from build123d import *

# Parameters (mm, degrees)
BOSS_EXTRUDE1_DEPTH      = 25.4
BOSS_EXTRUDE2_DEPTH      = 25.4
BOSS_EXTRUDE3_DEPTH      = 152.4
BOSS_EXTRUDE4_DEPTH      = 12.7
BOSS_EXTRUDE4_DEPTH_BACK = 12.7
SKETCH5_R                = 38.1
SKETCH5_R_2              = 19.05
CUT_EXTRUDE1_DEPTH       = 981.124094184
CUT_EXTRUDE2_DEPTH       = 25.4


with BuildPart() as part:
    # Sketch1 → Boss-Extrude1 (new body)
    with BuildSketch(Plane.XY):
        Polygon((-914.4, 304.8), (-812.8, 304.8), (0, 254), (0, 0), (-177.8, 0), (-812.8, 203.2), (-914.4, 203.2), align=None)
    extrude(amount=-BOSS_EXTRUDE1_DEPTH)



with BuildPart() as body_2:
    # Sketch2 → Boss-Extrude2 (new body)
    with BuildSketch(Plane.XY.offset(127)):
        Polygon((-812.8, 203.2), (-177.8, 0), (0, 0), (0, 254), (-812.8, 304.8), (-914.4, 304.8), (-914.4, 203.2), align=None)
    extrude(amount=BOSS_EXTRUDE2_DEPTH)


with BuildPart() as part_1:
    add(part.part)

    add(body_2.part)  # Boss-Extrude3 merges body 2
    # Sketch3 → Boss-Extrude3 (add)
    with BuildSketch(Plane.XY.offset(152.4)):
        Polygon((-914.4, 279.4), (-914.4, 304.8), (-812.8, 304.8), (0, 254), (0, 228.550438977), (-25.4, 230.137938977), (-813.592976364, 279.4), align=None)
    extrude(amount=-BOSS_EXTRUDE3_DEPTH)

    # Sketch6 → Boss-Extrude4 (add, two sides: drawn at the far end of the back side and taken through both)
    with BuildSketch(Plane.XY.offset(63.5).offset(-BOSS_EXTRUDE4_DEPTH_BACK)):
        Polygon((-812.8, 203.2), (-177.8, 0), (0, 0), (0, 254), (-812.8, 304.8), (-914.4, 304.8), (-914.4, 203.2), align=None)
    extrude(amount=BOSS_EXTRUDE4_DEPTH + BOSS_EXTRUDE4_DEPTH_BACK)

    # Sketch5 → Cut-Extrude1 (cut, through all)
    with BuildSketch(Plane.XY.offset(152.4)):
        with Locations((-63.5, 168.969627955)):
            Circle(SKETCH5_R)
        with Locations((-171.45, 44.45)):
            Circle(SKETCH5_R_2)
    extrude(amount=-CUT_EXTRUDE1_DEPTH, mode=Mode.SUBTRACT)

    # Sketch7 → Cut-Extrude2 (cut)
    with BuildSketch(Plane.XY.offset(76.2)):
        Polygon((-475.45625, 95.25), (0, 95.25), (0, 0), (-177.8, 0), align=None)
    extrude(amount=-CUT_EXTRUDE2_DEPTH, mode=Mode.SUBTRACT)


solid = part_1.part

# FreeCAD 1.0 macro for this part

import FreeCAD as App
import Part
import Sketcher

V = App.Vector
Q = App.Units.Quantity

doc = App.newDocument("Part")
body = doc.addObject("PartDesign::Body", "Body")

# Sketch on XY plane
sketch1 = body.newObject("Sketcher::SketchObject", "Sketch")
sketch1.AttachmentSupport = (doc.getObject("XY_Plane"), [""])
sketch1.MapMode = "FlatFace"
sketch1.addGeometry([
    Part.LineSegment(V(-813, 305, 0), V(-914, 305, 0)),  # 0
    Part.LineSegment(V(-914, 305, 0), V(-914, 203, 0)),  # 1
    Part.LineSegment(V(-914, 203, 0), V(-813, 203, 0)),  # 2
    Part.LineSegment(V(-813, 203, 0), V(-178, 0, 0)),  # 3
    Part.LineSegment(V(-178, 0, 0), V(0, 0, 0)),  # 4
    Part.LineSegment(V(0, 0, 0), V(0, 254, 0)),  # 5
    Part.LineSegment(V(0, 254, 0), V(-813, 305, 0)),  # 6
], False)
sketch1.addConstraint([
    Sketcher.Constraint("Coincident", 0, 2, 1, 1),
    Sketcher.Constraint("Coincident", 1, 2, 2, 1),
    Sketcher.Constraint("Coincident", 2, 2, 3, 1),
    Sketcher.Constraint("Coincident", 3, 2, 4, 1),
    Sketcher.Constraint("Coincident", 4, 2, 5, 1),
    Sketcher.Constraint("Coincident", 5, 2, 6, 1),
    Sketcher.Constraint("Coincident", 6, 2, 0, 1),
    Sketcher.Constraint("Horizontal", 0),
    Sketcher.Constraint("Vertical", 1),
    Sketcher.Constraint("Horizontal", 2),
    Sketcher.Constraint("Horizontal", 4),
    Sketcher.Constraint("Vertical", 5),
    Sketcher.Constraint("Coincident", 4, 2, -1, 1),
    Sketcher.Constraint("Vertical", 2, 2, 6, 2),
    Sketcher.Constraint("Equal", 2, 1),
    Sketcher.Constraint("DistanceX", 0, 2, 0, 1, Q("4 in")),
    Sketcher.Constraint("DistanceX", 4, 1, 4, 2, Q("7 in")),
    Sketcher.Constraint("DistanceY", 5, 1, 5, 2, Q("10 in")),
    Sketcher.Constraint("DistanceX", 0, 2, -1, 1, Q("36 in")),
    Sketcher.Constraint("DistanceY", -1, 1, 0, 2, Q("12 in")),
])
pad1 = body.newObject("PartDesign::Pad", "Pad")
pad1.Profile = sketch1
pad1.Length = Q("1 in")
pad1.Reversed = True
body2 = doc.addObject("PartDesign::Body", "Body001")

# Sketch on XY plane
sketch2 = body2.newObject("Sketcher::SketchObject", "Sketch001")
sketch2.AttachmentSupport = (doc.getObject("XY_Plane001"), [""])
sketch2.MapMode = "FlatFace"
sketch2.AttachmentOffset = App.Placement(V(0, 0, 5 * 25.4), App.Rotation())
sketch2.addGeometry([
    Part.LineSegment(V(-813, 203, 0), V(-178, 0, 0)),  # 0
    Part.LineSegment(V(-178, 0, 0), V(0, 0, 0)),  # 1
    Part.LineSegment(V(0, 0, 0), V(0, 254, 0)),  # 2
    Part.LineSegment(V(0, 254, 0), V(-813, 305, 0)),  # 3
    Part.LineSegment(V(-813, 305, 0), V(-914, 305, 0)),  # 4
    Part.LineSegment(V(-914, 305, 0), V(-914, 203, 0)),  # 5
    Part.LineSegment(V(-914, 203, 0), V(-813, 203, 0)),  # 6
], False)
sketch2.addConstraint([
    Sketcher.Constraint("Coincident", 0, 2, 1, 1),
    Sketcher.Constraint("Coincident", 1, 2, 2, 1),
    Sketcher.Constraint("Coincident", 2, 2, 3, 1),
    Sketcher.Constraint("Coincident", 3, 2, 4, 1),
    Sketcher.Constraint("Coincident", 4, 2, 5, 1),
    Sketcher.Constraint("Coincident", 5, 2, 6, 1),
    Sketcher.Constraint("Coincident", 6, 2, 0, 1),
    Sketcher.Constraint("Horizontal", 1),
    Sketcher.Constraint("Vertical", 2),
    Sketcher.Constraint("Horizontal", 4),
    Sketcher.Constraint("Vertical", 5),
    Sketcher.Constraint("Horizontal", 6),
    Sketcher.Constraint("Coincident", 1, 2, -1, 1),
    Sketcher.Constraint("Vertical", 3, 2, 6, 2),
    Sketcher.Constraint("Equal", 6, 5),
    Sketcher.Constraint("DistanceX", 1, 1, 1, 2, Q("7 in")),
    Sketcher.Constraint("DistanceX", 4, 2, 4, 1, Q("4 in")),
    Sketcher.Constraint("DistanceY", 2, 1, 2, 2, Q("10 in")),
    Sketcher.Constraint("DistanceX", 3, 2, -1, 1, Q("32 in")),
    Sketcher.Constraint("DistanceY", -1, 1, 3, 2, Q("12 in")),
])
pad2 = body2.newObject("PartDesign::Pad", "Pad001")
pad2.Profile = sketch2
pad2.Length = Q("1 in")
body.AllowCompound = True
doc.recompute()

boolean = body.newObject("PartDesign::Boolean", "Boolean")
boolean.Type = "Fuse"
boolean.addObjects([body2])

# Sketch on XY plane
sketch3 = body.newObject("Sketcher::SketchObject", "Sketch002")
sketch3.AttachmentSupport = (doc.getObject("XY_Plane"), [""])
sketch3.MapMode = "FlatFace"
sketch3.AttachmentOffset = App.Placement(V(0, 0, 6 * 25.4), App.Rotation())
sketch3.addGeometry([
    Part.LineSegment(V(-914, 305, 0), V(-914, 279, 0)),  # 0
    Part.LineSegment(V(-914, 279, 0), V(-814, 279, 0)),  # 1
    Part.LineSegment(V(-814, 279, 0), V(0, 229, 0)),  # 2
    Part.LineSegment(V(0, 229, 0), V(0, 254, 0)),  # 3
    Part.LineSegment(V(0, 254, 0), V(-813, 305, 0)),  # 4
    Part.LineSegment(V(-813, 305, 0), V(-914, 305, 0)),  # 5
], False)
sketch3.addConstraint([
    Sketcher.Constraint("Coincident", 0, 2, 1, 1),
    Sketcher.Constraint("Coincident", 1, 2, 2, 1),
    Sketcher.Constraint("Coincident", 2, 2, 3, 1),
    Sketcher.Constraint("Coincident", 3, 2, 4, 1),
    Sketcher.Constraint("Coincident", 4, 2, 5, 1),
    Sketcher.Constraint("Coincident", 5, 2, 0, 1),
    Sketcher.Constraint("Vertical", 0),
    Sketcher.Constraint("Horizontal", 1),
    Sketcher.Constraint("Vertical", 3),
    Sketcher.Constraint("Horizontal", 5),
    Sketcher.Constraint("PointOnObject", 2, 2, -2),
    Sketcher.Constraint("Parallel", 2, 4),
    Sketcher.Constraint("DistanceX", 5, 2, 5, 1, Q("4 in")),
    Sketcher.Constraint("DistanceY", 0, 2, 0, 1, Q("1 in")),
    Sketcher.Constraint("DistanceX", 0, 2, -1, 1, Q("36 in")),
    Sketcher.Constraint("DistanceY", -1, 1, 0, 2, Q("11 in")),
    Sketcher.Constraint("DistanceY", -1, 1, 3, 2, Q("10 in")),
    Sketcher.Constraint("DistanceY", 3, 1, 3, 2, Q("25.449561 mm")),
])
pad3 = body.newObject("PartDesign::Pad", "Pad002")
pad3.Profile = sketch3
pad3.Length = Q("6 in")
pad3.Reversed = True

# Sketch on XY plane
sketch4 = body.newObject("Sketcher::SketchObject", "Sketch003")
sketch4.AttachmentSupport = (doc.getObject("XY_Plane"), [""])
sketch4.MapMode = "FlatFace"
sketch4.AttachmentOffset = App.Placement(V(0, 0, 2.5 * 25.4), App.Rotation())
sketch4.addGeometry([
    Part.LineSegment(V(-813, 203, 0), V(-178, 0, 0)),  # 0
    Part.LineSegment(V(-178, 0, 0), V(0, 0, 0)),  # 1
    Part.LineSegment(V(0, 0, 0), V(0, 254, 0)),  # 2
    Part.LineSegment(V(0, 254, 0), V(-813, 305, 0)),  # 3
    Part.LineSegment(V(-813, 305, 0), V(-914, 305, 0)),  # 4
    Part.LineSegment(V(-914, 305, 0), V(-914, 203, 0)),  # 5
    Part.LineSegment(V(-914, 203, 0), V(-813, 203, 0)),  # 6
], False)
sketch4.addConstraint([
    Sketcher.Constraint("Coincident", 0, 2, 1, 1),
    Sketcher.Constraint("Coincident", 1, 2, 2, 1),
    Sketcher.Constraint("Coincident", 2, 2, 3, 1),
    Sketcher.Constraint("Coincident", 3, 2, 4, 1),
    Sketcher.Constraint("Coincident", 4, 2, 5, 1),
    Sketcher.Constraint("Coincident", 5, 2, 6, 1),
    Sketcher.Constraint("Coincident", 6, 2, 0, 1),
    Sketcher.Constraint("Horizontal", 1),
    Sketcher.Constraint("Vertical", 2),
    Sketcher.Constraint("Horizontal", 4),
    Sketcher.Constraint("Vertical", 5),
    Sketcher.Constraint("Horizontal", 6),
    Sketcher.Constraint("Coincident", 1, 2, -1, 1),
    Sketcher.Constraint("Vertical", 3, 2, 6, 2),
    Sketcher.Constraint("Equal", 6, 5),
    Sketcher.Constraint("DistanceX", 1, 1, 1, 2, Q("7 in")),
    Sketcher.Constraint("DistanceX", 4, 2, 4, 1, Q("4 in")),
    Sketcher.Constraint("DistanceY", 2, 1, 2, 2, Q("10 in")),
    Sketcher.Constraint("DistanceX", 3, 2, -1, 1, Q("32 in")),
    Sketcher.Constraint("DistanceY", -1, 1, 3, 2, Q("12 in")),
])
pad4 = body.newObject("PartDesign::Pad", "Pad003")
pad4.Profile = sketch4
pad4.Type = "TwoLengths"
pad4.Length = Q("0.5 in")
pad4.Length2 = Q("0.5 in")

# Sketch on XY plane
sketch5 = body.newObject("Sketcher::SketchObject", "Sketch004")
sketch5.AttachmentSupport = (doc.getObject("XY_Plane"), [""])
sketch5.MapMode = "FlatFace"
sketch5.AttachmentOffset = App.Placement(V(0, 0, 6 * 25.4), App.Rotation())
sketch5.addGeometry([
    Part.Circle(V(-64, 169, 0), V(0, 0, 1), 38),
    Part.Circle(V(-171, 44, 0), V(0, 0, 1), 19),
], False)
sketch5.addConstraint([
    Sketcher.Constraint("Diameter", 0, Q("3 in")),
    Sketcher.Constraint("Diameter", 1, Q("1.5 in")),
    Sketcher.Constraint("DistanceX", 0, 3, -1, 1, Q("2.5 in")),
    Sketcher.Constraint("DistanceX", 1, 3, -1, 1, Q("6.75 in")),
    Sketcher.Constraint("DistanceY", -1, 1, 1, 3, Q("1.75 in")),
    Sketcher.Constraint("DistanceY", -1, 1, 0, 3, Q("168.969628 mm")),
])
pocket1 = body.newObject("PartDesign::Pocket", "Pocket")
pocket1.Profile = sketch5
pocket1.Type = "ThroughAll"

# Sketch on XY plane
sketch6 = body.newObject("Sketcher::SketchObject", "Sketch005")
sketch6.AttachmentSupport = (doc.getObject("XY_Plane"), [""])
sketch6.MapMode = "FlatFace"
sketch6.AttachmentOffset = App.Placement(V(0, 0, 3 * 25.4), App.Rotation())
sketch6.addGeometry([
    Part.LineSegment(V(0, 95, 0), V(-475, 95, 0)),
    Part.LineSegment(V(-475, 95, 0), V(-178, 0, 0)),
    Part.LineSegment(V(-178, 0, 0), V(0, 0, 0)),
    Part.LineSegment(V(0, 0, 0), V(0, 95, 0)),
], False)
sketch6.addConstraint([
    Sketcher.Constraint("Coincident", 0, 2, 1, 1),
    Sketcher.Constraint("Coincident", 1, 2, 2, 1),
    Sketcher.Constraint("Coincident", 2, 2, 3, 1),
    Sketcher.Constraint("Coincident", 3, 2, 0, 1),
    Sketcher.Constraint("Horizontal", 0),
    Sketcher.Constraint("Horizontal", 2),
    Sketcher.Constraint("Vertical", 3),
    Sketcher.Constraint("Coincident", 2, 2, -1, 1),
    Sketcher.Constraint("DistanceX", 2, 1, 2, 2, Q("7 in")),
    Sketcher.Constraint("DistanceY", 3, 1, 3, 2, Q("3.75 in")),
    Sketcher.Constraint("DistanceX", 0, 2, 0, 1, Q("18.71875 in")),
])
pocket2 = body.newObject("PartDesign::Pocket", "Pocket001")
pocket2.Profile = sketch6
pocket2.Length = Q("1 in")

doc.recompute()
